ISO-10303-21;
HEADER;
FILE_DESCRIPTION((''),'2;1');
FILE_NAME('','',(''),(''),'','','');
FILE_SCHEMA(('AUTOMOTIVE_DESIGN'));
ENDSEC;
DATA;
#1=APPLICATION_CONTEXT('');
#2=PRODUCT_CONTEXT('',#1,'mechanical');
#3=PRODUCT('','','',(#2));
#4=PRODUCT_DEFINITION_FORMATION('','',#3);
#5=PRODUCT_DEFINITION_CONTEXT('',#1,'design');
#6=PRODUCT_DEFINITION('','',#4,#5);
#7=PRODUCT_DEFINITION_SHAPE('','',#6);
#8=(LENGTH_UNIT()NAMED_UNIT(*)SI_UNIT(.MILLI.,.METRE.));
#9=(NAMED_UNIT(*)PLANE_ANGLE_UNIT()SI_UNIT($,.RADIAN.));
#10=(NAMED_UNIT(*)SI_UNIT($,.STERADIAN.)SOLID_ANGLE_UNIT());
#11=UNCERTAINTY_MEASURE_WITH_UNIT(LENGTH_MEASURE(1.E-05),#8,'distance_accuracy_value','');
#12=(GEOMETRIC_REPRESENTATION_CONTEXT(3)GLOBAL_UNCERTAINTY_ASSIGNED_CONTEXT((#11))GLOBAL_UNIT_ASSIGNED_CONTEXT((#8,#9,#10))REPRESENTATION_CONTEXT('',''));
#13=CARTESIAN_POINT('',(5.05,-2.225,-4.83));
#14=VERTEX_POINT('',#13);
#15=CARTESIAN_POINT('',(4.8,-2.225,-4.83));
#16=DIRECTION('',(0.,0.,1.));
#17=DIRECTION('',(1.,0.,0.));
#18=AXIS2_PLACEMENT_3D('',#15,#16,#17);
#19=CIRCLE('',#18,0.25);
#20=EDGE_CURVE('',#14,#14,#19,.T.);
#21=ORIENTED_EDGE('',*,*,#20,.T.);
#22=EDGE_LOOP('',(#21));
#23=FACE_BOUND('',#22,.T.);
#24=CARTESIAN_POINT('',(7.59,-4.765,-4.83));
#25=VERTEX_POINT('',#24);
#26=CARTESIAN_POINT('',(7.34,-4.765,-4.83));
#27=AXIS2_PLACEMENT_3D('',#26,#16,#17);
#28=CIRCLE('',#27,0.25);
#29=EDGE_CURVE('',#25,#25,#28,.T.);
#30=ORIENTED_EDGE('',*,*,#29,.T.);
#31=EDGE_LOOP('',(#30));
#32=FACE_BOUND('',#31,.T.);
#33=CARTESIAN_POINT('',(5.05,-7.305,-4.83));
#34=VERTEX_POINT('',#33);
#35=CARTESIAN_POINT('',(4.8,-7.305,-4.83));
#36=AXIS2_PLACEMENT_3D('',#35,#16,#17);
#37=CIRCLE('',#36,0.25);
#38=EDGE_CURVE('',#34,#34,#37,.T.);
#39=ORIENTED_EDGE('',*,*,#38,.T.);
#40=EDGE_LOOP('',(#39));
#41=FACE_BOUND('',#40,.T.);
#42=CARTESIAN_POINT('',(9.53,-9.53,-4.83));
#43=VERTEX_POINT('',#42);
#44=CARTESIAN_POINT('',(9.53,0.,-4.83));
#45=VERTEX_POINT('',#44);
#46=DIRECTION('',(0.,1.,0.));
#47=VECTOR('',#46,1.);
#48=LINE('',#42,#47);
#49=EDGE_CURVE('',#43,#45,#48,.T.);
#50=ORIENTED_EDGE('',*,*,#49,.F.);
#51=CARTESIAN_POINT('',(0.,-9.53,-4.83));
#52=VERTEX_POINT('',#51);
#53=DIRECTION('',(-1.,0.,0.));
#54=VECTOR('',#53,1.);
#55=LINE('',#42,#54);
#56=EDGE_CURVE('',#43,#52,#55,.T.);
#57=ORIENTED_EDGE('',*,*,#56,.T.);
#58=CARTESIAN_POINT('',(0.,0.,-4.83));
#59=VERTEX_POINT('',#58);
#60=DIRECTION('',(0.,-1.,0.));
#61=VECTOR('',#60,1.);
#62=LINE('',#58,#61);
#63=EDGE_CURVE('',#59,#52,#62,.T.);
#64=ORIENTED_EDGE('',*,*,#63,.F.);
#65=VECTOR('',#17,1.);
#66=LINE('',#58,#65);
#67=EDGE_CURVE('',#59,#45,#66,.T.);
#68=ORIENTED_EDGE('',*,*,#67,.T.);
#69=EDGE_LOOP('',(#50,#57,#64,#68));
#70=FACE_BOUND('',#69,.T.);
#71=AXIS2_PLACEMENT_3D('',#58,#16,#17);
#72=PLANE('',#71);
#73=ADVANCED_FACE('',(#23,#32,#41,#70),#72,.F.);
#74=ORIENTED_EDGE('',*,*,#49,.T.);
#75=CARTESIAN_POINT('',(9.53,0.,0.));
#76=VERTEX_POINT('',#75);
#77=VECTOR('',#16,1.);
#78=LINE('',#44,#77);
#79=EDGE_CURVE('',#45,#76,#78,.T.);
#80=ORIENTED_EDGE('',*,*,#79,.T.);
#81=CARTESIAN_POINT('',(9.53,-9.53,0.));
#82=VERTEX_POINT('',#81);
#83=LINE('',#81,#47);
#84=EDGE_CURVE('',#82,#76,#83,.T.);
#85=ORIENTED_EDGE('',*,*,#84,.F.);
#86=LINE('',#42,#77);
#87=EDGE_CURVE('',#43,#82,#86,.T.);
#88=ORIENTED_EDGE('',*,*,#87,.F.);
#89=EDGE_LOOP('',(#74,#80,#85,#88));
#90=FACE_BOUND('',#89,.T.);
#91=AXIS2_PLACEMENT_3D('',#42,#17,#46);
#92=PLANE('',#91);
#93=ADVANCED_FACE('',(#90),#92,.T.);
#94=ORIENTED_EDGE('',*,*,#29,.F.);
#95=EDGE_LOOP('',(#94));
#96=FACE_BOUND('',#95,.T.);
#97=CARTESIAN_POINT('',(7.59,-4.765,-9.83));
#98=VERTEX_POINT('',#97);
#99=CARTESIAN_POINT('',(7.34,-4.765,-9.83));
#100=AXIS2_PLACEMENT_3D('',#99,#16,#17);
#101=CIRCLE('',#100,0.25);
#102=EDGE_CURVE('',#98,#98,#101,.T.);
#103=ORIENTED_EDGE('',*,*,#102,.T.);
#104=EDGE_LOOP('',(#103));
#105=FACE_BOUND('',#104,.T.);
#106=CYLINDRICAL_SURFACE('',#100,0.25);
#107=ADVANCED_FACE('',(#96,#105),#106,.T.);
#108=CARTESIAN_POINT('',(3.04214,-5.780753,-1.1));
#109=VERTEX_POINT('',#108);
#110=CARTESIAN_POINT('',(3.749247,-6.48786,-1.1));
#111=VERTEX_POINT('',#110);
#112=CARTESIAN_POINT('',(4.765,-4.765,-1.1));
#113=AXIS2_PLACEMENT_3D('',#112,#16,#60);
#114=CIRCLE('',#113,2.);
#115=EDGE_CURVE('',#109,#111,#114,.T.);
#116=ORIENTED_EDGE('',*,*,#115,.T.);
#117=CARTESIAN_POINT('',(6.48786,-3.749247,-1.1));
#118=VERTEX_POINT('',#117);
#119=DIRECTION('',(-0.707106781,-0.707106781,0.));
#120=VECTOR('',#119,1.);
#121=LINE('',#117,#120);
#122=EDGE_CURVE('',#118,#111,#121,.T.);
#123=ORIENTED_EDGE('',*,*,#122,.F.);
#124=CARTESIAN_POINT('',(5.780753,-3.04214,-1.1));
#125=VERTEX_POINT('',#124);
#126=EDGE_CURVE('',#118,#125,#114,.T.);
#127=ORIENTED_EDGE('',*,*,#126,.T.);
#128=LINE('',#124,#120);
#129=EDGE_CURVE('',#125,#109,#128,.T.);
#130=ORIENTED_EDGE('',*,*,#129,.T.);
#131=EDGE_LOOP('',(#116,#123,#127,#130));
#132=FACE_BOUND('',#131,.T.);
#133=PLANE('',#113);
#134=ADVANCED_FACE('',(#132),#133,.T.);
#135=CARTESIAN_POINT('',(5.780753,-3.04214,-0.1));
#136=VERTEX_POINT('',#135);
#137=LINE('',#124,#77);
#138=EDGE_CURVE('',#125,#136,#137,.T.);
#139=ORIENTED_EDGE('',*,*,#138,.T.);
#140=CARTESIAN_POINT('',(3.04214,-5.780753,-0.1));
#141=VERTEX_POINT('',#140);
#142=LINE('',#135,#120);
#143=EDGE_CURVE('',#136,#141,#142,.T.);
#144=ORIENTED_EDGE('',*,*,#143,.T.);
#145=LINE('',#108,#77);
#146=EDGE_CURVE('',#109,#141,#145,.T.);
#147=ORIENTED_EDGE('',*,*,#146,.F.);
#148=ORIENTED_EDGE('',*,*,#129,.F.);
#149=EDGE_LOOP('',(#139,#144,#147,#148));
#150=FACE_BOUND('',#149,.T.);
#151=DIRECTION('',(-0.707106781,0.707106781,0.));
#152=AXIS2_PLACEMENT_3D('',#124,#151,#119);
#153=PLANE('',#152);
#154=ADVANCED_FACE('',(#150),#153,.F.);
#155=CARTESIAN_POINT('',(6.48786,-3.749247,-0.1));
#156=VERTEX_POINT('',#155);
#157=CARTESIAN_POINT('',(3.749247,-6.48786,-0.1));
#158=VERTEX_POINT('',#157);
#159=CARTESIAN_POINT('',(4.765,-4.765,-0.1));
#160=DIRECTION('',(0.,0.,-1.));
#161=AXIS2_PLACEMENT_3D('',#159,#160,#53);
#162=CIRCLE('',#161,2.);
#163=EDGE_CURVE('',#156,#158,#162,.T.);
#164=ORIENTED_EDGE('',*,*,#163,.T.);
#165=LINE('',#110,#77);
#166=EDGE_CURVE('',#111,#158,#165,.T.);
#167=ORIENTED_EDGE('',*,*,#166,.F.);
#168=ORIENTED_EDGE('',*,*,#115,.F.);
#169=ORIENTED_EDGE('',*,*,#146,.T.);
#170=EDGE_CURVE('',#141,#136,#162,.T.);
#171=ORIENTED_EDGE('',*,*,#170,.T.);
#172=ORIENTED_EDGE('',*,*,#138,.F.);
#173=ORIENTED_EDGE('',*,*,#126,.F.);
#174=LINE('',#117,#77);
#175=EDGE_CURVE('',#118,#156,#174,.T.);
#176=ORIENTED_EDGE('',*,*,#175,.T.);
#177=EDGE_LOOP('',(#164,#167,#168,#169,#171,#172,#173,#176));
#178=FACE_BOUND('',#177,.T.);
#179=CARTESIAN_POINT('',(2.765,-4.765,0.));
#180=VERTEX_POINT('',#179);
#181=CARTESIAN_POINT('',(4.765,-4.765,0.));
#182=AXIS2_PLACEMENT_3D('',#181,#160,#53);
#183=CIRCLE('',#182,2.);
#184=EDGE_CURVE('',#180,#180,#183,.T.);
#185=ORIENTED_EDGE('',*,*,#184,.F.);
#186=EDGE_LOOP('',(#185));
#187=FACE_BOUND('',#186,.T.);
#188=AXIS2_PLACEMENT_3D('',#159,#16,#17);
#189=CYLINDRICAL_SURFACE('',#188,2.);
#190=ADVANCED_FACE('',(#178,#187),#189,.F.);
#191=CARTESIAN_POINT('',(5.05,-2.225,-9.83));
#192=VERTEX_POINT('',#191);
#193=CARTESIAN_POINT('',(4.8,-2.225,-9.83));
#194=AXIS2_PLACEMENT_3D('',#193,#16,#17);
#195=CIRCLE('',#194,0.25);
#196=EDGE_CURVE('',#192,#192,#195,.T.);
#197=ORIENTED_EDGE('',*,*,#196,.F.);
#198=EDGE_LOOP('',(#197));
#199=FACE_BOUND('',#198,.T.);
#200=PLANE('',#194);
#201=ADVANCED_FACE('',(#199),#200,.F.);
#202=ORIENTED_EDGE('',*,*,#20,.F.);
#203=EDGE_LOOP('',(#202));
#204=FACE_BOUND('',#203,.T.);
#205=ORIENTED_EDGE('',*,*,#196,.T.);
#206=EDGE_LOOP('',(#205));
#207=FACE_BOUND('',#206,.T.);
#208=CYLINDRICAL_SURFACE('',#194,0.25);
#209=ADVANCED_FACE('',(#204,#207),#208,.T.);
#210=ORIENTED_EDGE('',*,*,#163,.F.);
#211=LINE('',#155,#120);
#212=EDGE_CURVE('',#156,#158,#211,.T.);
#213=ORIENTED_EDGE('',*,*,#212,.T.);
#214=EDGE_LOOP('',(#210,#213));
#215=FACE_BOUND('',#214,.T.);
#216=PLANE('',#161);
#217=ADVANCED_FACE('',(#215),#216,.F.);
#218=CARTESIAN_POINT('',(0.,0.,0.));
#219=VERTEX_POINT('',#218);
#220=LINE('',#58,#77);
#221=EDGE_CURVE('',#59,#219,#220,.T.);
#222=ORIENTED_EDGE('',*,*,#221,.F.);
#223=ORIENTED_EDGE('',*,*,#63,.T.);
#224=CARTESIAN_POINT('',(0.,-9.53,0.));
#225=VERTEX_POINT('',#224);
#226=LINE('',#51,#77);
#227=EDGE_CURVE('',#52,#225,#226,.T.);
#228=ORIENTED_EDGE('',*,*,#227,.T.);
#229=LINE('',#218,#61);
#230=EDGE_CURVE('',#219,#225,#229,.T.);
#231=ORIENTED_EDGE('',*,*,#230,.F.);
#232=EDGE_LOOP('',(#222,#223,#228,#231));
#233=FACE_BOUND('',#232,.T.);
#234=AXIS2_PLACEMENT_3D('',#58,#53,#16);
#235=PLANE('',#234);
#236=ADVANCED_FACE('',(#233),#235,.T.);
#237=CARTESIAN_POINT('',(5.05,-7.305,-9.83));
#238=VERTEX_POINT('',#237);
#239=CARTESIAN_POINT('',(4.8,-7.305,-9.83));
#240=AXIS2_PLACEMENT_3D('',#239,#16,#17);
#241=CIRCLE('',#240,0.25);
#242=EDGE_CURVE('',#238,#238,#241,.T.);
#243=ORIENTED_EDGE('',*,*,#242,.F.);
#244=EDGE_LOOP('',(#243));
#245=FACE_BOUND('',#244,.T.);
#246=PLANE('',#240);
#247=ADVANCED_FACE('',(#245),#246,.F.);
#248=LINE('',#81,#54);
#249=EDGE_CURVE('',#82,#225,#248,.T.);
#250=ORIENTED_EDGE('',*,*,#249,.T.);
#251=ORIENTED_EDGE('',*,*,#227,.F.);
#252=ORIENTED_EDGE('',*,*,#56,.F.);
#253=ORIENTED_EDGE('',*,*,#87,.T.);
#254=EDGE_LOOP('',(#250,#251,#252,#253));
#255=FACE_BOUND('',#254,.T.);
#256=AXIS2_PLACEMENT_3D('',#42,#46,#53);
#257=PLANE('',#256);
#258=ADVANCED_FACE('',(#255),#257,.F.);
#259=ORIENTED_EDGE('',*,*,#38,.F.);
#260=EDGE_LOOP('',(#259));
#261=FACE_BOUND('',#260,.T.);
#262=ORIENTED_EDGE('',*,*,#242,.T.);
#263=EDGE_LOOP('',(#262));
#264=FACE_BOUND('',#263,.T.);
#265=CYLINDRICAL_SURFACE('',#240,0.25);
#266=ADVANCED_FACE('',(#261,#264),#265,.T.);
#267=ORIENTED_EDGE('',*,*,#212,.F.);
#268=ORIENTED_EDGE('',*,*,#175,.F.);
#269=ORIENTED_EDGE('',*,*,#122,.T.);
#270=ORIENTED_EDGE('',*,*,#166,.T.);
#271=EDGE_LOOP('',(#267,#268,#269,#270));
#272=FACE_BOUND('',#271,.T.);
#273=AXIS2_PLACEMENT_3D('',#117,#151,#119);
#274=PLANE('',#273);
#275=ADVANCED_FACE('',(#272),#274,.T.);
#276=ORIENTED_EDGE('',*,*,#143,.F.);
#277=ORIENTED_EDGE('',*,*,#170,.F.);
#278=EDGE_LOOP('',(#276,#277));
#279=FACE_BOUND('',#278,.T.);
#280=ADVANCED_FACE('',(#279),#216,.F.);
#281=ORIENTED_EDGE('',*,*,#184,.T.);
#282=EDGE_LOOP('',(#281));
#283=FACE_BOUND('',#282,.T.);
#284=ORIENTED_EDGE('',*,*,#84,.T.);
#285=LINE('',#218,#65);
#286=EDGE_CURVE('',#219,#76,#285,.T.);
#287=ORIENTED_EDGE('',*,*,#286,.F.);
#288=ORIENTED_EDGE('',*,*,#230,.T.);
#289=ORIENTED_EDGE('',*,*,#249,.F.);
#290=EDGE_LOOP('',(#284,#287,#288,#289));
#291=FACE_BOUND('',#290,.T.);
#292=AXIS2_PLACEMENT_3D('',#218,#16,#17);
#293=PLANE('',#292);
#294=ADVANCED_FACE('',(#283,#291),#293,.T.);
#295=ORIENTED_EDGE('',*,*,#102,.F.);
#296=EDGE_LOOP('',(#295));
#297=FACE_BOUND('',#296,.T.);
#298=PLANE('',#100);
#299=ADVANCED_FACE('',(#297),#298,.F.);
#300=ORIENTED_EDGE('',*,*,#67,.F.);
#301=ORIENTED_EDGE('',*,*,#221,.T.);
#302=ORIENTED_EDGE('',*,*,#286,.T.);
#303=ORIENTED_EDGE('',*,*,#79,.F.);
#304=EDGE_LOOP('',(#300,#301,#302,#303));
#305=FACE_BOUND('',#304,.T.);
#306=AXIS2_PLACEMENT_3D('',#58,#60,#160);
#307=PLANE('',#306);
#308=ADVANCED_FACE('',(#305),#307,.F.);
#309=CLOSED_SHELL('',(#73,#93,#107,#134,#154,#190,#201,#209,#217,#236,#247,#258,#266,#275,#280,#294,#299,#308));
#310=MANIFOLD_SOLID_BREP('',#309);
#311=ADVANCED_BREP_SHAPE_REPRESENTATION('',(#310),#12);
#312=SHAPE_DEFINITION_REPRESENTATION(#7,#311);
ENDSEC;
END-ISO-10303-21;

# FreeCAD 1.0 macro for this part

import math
import FreeCAD as App
import Part
import Sketcher
from FreeCAD import Vector
Q = App.Units.Quantity

doc = App.newDocument("Part")
params = doc.addObject("Spreadsheet::Sheet", "Params")
for row, (alias, value) in enumerate([
    ("sketch1_width", "9.53 mm"),
    ("pad1_length", "4.83 mm"),
    ("sketch2_diameter", "0.5 mm"),
    ("pad2_length", "5 mm"),
    ("sketch3_diameter", "4 mm"),
    ("pocket1_length", "0.1 mm"),
    ("sketch4_radius", "2 mm"),
    ("pocket2_length", "1 mm"),
], start=1):
    params.set(f"A{row}", alias)
    params.set(f"B{row}", "=" + value)
    params.setAlias(f"B{row}", alias)

body = doc.addObject("PartDesign::Body", "Body")

sketch1 = doc.addObject("Sketcher::SketchObject", "Sketch")
body.addObject(sketch1)
sketch1.AttachmentSupport = (doc.XY_Plane, [""])
sketch1.MapMode = "FlatFace"
sketch1.addGeometry([
    Part.LineSegment(Vector(0, -10, 0), Vector(0, 0, 0)),
    Part.LineSegment(Vector(0, 0, 0), Vector(10, 0, 0)),
    Part.LineSegment(Vector(10, 0, 0), Vector(10, -10, 0)),
    Part.LineSegment(Vector(10, -10, 0), Vector(0, -10, 0)),
], False)
sketch1.addConstraint([
    Sketcher.Constraint("Coincident", 0, 2, 1, 1),
    Sketcher.Constraint("Coincident", 1, 2, 2, 1),
    Sketcher.Constraint("Coincident", 2, 2, 3, 1),
    Sketcher.Constraint("Coincident", 3, 2, 0, 1),
    Sketcher.Constraint("Vertical", 0),
    Sketcher.Constraint("Horizontal", 1),
    Sketcher.Constraint("Vertical", 2),
    Sketcher.Constraint("Horizontal", 3),
    Sketcher.Constraint("Coincident", 0, 2, -1, 1),
    Sketcher.Constraint("Equal", 3, 0),
    Sketcher.Constraint("DistanceX", 1, 1, 1, 2, 9.53),
])
sketch1.setExpression("Constraints[10]", "Params.sketch1_width")
pad1 = doc.addObject("PartDesign::Pad", "Pad")
body.addObject(pad1)
pad1.Profile = sketch1
pad1.setExpression("Length", "Params.pad1_length")
pad1.Reversed = True

sketch2 = doc.addObject("Sketcher::SketchObject", "Sketch001")
body.addObject(sketch2)
sketch2.AttachmentSupport = (doc.XY_Plane, [""])
sketch2.MapMode = "FlatFace"
sketch2.AttachmentOffset = App.Placement(Vector(0, 0, -4.83), App.Rotation())
sketch2.addGeometry([
    Part.Circle(Vector(4.8, -7.3, 0), Vector(0, 0, 1), 0.25),
    Part.Circle(Vector(4.8, -2.23, 0), Vector(0, 0, 1), 0.25),
    Part.Circle(Vector(7.34, -4.76, 0), Vector(0, 0, 1), 0.25),
], False)
sketch2.addConstraint([
    Sketcher.Constraint("Equal", 0, 1),
    Sketcher.Constraint("Equal", 1, 2),
    Sketcher.Constraint("Vertical", 0, 3, 1, 3),
    Sketcher.Constraint("Diameter", 0, 0.5),
    Sketcher.Constraint("DistanceX", -1, 1, 0, 3, 4.8),
    Sketcher.Constraint("DistanceX", -1, 1, 2, 3, 7.34),
    Sketcher.Constraint("DistanceY", 0, 3, 1, 3, 5.08),
    Sketcher.Constraint("DistanceY", 0, 3, 2, 3, 2.54),
    Sketcher.Constraint("DistanceY", 0, 3, -1, 1, 7.305),
])
sketch2.setExpression("Constraints[3]", "Params.sketch2_diameter")
pad2 = doc.addObject("PartDesign::Pad", "Pad001")
body.addObject(pad2)
pad2.Profile = sketch2
pad2.setExpression("Length", "Params.pad2_length")
pad2.Reversed = True

sketch3 = doc.addObject("Sketcher::SketchObject", "Sketch002")
body.addObject(sketch3)
sketch3.AttachmentSupport = (doc.XY_Plane, [""])
sketch3.MapMode = "FlatFace"
sketch3.addGeometry(Part.Circle(Vector(4.8, -4.8, 0), Vector(0, 0, 1), 2), False)
sketch3.addConstraint([
    Sketcher.Constraint("Diameter", 0, 4.0),
    Sketcher.Constraint("DistanceX", -1, 1, 0, 3, 4.765),
    Sketcher.Constraint("DistanceY", 0, 3, -1, 1, 4.765),
])
sketch3.setExpression("Constraints[0]", "Params.sketch3_diameter")
pocket1 = doc.addObject("PartDesign::Pocket", "Pocket")
body.addObject(pocket1)
pocket1.Profile = sketch3
pocket1.setExpression("Length", "Params.pocket1_length")

sketch4 = doc.addObject("Sketcher::SketchObject", "Sketch003")
body.addObject(sketch4)
sketch4.AttachmentSupport = (doc.XY_Plane, [""])
sketch4.MapMode = "FlatFace"
sketch4.AttachmentOffset = App.Placement(Vector(0, 0, -0.1), App.Rotation())
sketch4.addGeometry([
    Part.LineSegment(Vector(3.7, -6.5, 0), Vector(6.5, -3.7, 0)),
    Part.ArcOfCircle(Part.Circle(Vector(4.8, -4.8, 0), Vector(0, 0, 1), 2), math.radians(31), math.radians(59)),
    Part.LineSegment(Vector(5.8, -3, 0), Vector(3, -5.8, 0)),
    Part.ArcOfCircle(Part.Circle(Vector(4.8, -4.8, 0), Vector(0, 0, 1), 2), math.radians(-149), math.radians(-121)),
], False)
sketch4.addConstraint([
    Sketcher.Constraint("Coincident", 0, 2, 1, 1),
    Sketcher.Constraint("Coincident", 1, 2, 2, 1),
    Sketcher.Constraint("Coincident", 2, 2, 3, 1),
    Sketcher.Constraint("Coincident", 3, 2, 0, 1),
    Sketcher.Constraint("Coincident", 3, 3, 1, 3),
    Sketcher.Constraint("Equal", 1, 3),
    Sketcher.Constraint("Parallel", 0, 2),
    Sketcher.Constraint("Equal", 0, 2),
    Sketcher.Constraint("Radius", 1, 2.0),
    Sketcher.Constraint("Angle", 0, Q("45 deg")),
    Sketcher.Constraint("DistanceX", -1, 1, 1, 3, 4.765),
    Sketcher.Constraint("DistanceY", 1, 3, -1, 1, 4.765),
    Sketcher.Constraint("DistanceX", -1, 1, 0, 2, 6.48786),
])
sketch4.setExpression("Constraints[8]", "Params.sketch4_radius")
pocket2 = doc.addObject("PartDesign::Pocket", "Pocket001")
body.addObject(pocket2)
pocket2.Profile = sketch4
pocket2.setExpression("Length", "Params.pocket2_length")

doc.recompute()
